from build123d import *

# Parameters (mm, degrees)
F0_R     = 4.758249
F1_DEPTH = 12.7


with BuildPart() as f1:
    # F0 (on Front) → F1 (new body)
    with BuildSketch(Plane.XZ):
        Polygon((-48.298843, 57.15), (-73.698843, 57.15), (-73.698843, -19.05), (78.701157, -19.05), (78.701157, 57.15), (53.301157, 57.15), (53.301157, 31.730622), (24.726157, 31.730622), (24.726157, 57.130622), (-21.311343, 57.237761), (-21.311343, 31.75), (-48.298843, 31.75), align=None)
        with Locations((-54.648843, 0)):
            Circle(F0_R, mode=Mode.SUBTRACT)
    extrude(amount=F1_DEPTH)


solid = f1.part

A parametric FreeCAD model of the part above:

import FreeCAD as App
import Part
import Sketcher
from FreeCAD import Vector
Q = App.Units.Quantity

doc = App.newDocument("Part")
body = doc.addObject("PartDesign::Body", "Body")

sketch1 = body.newObject("Sketcher::SketchObject", "Sketch")
sketch1.AttachmentSupport = (doc.getObject("XZ_Plane"), [""])
sketch1.MapMode = "FlatFace"
sketch1.addGeometry([
    Part.LineSegment(Vector(-48.298843, 57.15, 0), Vector(-73.698843, 57.15, 0)),
    Part.LineSegment(Vector(-73.698843, 57.15, 0), Vector(-73.698843, -19.05, 0)),
    Part.LineSegment(Vector(-73.698843, -19.05, 0), Vector(78.701157, -19.05, 0)),
    Part.LineSegment(Vector(78.701157, -19.05, 0), Vector(78.701157, 57.15, 0)),
    Part.LineSegment(Vector(78.701157, 57.15, 0), Vector(53.301157, 57.15, 0)),
    Part.LineSegment(Vector(53.301157, 57.15, 0), Vector(53.301157, 31.730622, 0)),
    Part.LineSegment(Vector(53.301157, 31.730622, 0), Vector(24.726157, 31.730622, 0)),
    Part.LineSegment(Vector(24.726157, 31.730622, 0), Vector(24.726157, 57.130622, 0)),
    Part.LineSegment(Vector(24.726157, 57.130622, 0), Vector(-21.311343, 57.237761, 0)),
    Part.LineSegment(Vector(-21.311343, 57.237761, 0), Vector(-21.311343, 31.75, 0)),
    Part.LineSegment(Vector(-21.311343, 31.75, 0), Vector(-48.298843, 31.75, 0)),
    Part.LineSegment(Vector(-48.298843, 31.75, 0), Vector(-48.298843, 57.15, 0)),
    Part.Circle(Vector(-54.648843, 0, 0), Vector(0, 0, 1), 4.758249),
], False)
sketch1.addConstraint([
    Sketcher.Constraint("Coincident", 0, 2, 1, 1),
    Sketcher.Constraint("Coincident", 1, 2, 2, 1),
    Sketcher.Constraint("Coincident", 2, 2, 3, 1),
    Sketcher.Constraint("Coincident", 3, 2, 4, 1),
    Sketcher.Constraint("Coincident", 4, 2, 5, 1),
    Sketcher.Constraint("Coincident", 5, 2, 6, 1),
    Sketcher.Constraint("Coincident", 6, 2, 7, 1),
    Sketcher.Constraint("Coincident", 7, 2, 8, 1),
    Sketcher.Constraint("Coincident", 8, 2, 9, 1),
    Sketcher.Constraint("Coincident", 9, 2, 10, 1),
    Sketcher.Constraint("Coincident", 10, 2, 11, 1),
    Sketcher.Constraint("Coincident", 11, 2, 0, 1),
    Sketcher.Constraint("Horizontal", 0),
    Sketcher.Constraint("Vertical", 1),
    Sketcher.Constraint("Horizontal", 2),
    Sketcher.Constraint("Vertical", 3),
    Sketcher.Constraint("Horizontal", 4),
    Sketcher.Constraint("Vertical", 5),
    Sketcher.Constraint("Horizontal", 6),
    Sketcher.Constraint("Vertical", 7),
    Sketcher.Constraint("Vertical", 9),
    Sketcher.Constraint("Horizontal", 10),
    Sketcher.Constraint("Vertical", 11),
    Sketcher.Constraint("PointOnObject", 12, 3, -1),
    Sketcher.Constraint("Horizontal", 0, 2, 3, 2),
    Sketcher.Constraint("Equal", 0, 4),
    Sketcher.Constraint("Equal", 4, 7),
    Sketcher.Constraint("Equal", 7, 11),
    Sketcher.Constraint("DistanceX", 0, 2, 0, 1, Q("1 in")),
    Sketcher.Constraint("DistanceX", 2, 1, 2, 2, Q("6 in")),
    Sketcher.Constraint("DistanceY", 1, 2, 1, 1, Q("3 in")),
    Sketcher.Constraint("DistanceX", 6, 2, 6, 1, Q("1.125 in")),
    Sketcher.Constraint("DistanceX", 10, 2, 10, 1, Q("1.0625 in")),
    Sketcher.Constraint("DistanceY", -1, 1, 0, 2, Q("2.25 in")),
    Sketcher.Constraint("DistanceX", 0, 2, 12, 3, Q("0.75 in")),
    Sketcher.Constraint("Diameter", 12, Q("9.516498 mm")),
    Sketcher.Constraint("DistanceY", 9, 2, 9, 1, Q("25.487761 mm")),
    Sketcher.Constraint("DistanceY", 5, 2, 5, 1, Q("25.419378 mm")),
    Sketcher.Constraint("DistanceX", 12, 3, -1, 1, Q("54.648843 mm")),
])
pad1 = body.newObject("PartDesign::Pad", "Pad")
pad1.Profile = sketch1
pad1.Length = Q("0.5 in")

doc.recompute()
